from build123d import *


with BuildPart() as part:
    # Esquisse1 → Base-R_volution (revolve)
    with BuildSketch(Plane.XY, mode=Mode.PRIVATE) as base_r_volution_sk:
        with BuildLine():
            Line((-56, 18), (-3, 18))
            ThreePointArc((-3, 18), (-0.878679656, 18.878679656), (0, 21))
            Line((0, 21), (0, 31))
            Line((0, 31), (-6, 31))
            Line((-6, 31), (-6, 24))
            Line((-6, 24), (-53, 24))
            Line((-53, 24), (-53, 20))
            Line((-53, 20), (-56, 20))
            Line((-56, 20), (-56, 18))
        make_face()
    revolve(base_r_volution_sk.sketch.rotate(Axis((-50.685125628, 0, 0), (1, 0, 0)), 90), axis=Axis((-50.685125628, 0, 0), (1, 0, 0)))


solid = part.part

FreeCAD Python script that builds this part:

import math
import FreeCAD as App
import Part
import Sketcher
from FreeCAD import Vector
Q = App.Units.Quantity

doc = App.newDocument("Part")
body = doc.addObject("PartDesign::Body", "Body")

# Sketch on XY plane
sketch1 = body.newObject("Sketcher::SketchObject", "Sketch")
sketch1.AttachmentSupport = (doc.getObject("XY_Plane"), [""])
sketch1.MapMode = "FlatFace"
sketch1.addGeometry([
    Part.LineSegment(Vector(-56, 18, 0), Vector(-3, 18, 0)),  # 0
    Part.ArcOfCircle(Part.Circle(Vector(-3, 21, 0), Vector(0, 0, 1), 3), math.radians(-90), math.radians(0)),  # 1
    Part.LineSegment(Vector(0, 21, 0), Vector(0, 31, 0)),  # 2
    Part.LineSegment(Vector(0, 31, 0), Vector(-6, 31, 0)),  # 3
    Part.LineSegment(Vector(-6, 31, 0), Vector(-6, 24, 0)),  # 4
    Part.LineSegment(Vector(-6, 24, 0), Vector(-53, 24, 0)),  # 5
    Part.LineSegment(Vector(-53, 24, 0), Vector(-53, 20, 0)),  # 6
    Part.LineSegment(Vector(-53, 20, 0), Vector(-56, 20, 0)),  # 7
    Part.LineSegment(Vector(-56, 20, 0), Vector(-56, 18, 0)),  # 8
], False)
sketch1.addConstraint([
    Sketcher.Constraint("Tangent", 0, 2, 1, 1),
    Sketcher.Constraint("Tangent", 1, 2, 2, 1),
    Sketcher.Constraint("Coincident", 2, 2, 3, 1),
    Sketcher.Constraint("Coincident", 3, 2, 4, 1),
    Sketcher.Constraint("Coincident", 4, 2, 5, 1),
    Sketcher.Constraint("Coincident", 5, 2, 6, 1),
    Sketcher.Constraint("Coincident", 6, 2, 7, 1),
    Sketcher.Constraint("Coincident", 7, 2, 8, 1),
    Sketcher.Constraint("Coincident", 8, 2, 0, 1),
    Sketcher.Constraint("Horizontal", 0),
    Sketcher.Constraint("Vertical", 2),
    Sketcher.Constraint("Horizontal", 3),
    Sketcher.Constraint("Vertical", 4),
    Sketcher.Constraint("Horizontal", 5),
    Sketcher.Constraint("Vertical", 6),
    Sketcher.Constraint("Horizontal", 7),
    Sketcher.Constraint("Vertical", 8),
    Sketcher.Constraint("PointOnObject", 1, 2, -2),
    Sketcher.Constraint("Radius", 1, Q("3 mm")),
    Sketcher.Constraint("DistanceX", 0, 1, 0, 2, Q("53 mm")),
    Sketcher.Constraint("DistanceX", 3, 2, 3, 1, Q("6 mm")),
    Sketcher.Constraint("DistanceX", 5, 2, 5, 1, Q("47 mm")),
    Sketcher.Constraint("DistanceY", 2, 1, 2, 2, Q("10 mm")),
    Sketcher.Constraint("DistanceY", 4, 2, 4, 1, Q("7 mm")),
    Sketcher.Constraint("DistanceY", 6, 2, 6, 1, Q("4 mm")),
    Sketcher.Constraint("DistanceY", -1, 1, 1, 3, Q("21 mm")),
])
revolution = body.newObject("PartDesign::Revolution", "Revolution")
revolution.Profile = sketch1
revolution.ReferenceAxis = (sketch1, ["H_Axis"])
revolution.Angle = 360

doc.recompute()
